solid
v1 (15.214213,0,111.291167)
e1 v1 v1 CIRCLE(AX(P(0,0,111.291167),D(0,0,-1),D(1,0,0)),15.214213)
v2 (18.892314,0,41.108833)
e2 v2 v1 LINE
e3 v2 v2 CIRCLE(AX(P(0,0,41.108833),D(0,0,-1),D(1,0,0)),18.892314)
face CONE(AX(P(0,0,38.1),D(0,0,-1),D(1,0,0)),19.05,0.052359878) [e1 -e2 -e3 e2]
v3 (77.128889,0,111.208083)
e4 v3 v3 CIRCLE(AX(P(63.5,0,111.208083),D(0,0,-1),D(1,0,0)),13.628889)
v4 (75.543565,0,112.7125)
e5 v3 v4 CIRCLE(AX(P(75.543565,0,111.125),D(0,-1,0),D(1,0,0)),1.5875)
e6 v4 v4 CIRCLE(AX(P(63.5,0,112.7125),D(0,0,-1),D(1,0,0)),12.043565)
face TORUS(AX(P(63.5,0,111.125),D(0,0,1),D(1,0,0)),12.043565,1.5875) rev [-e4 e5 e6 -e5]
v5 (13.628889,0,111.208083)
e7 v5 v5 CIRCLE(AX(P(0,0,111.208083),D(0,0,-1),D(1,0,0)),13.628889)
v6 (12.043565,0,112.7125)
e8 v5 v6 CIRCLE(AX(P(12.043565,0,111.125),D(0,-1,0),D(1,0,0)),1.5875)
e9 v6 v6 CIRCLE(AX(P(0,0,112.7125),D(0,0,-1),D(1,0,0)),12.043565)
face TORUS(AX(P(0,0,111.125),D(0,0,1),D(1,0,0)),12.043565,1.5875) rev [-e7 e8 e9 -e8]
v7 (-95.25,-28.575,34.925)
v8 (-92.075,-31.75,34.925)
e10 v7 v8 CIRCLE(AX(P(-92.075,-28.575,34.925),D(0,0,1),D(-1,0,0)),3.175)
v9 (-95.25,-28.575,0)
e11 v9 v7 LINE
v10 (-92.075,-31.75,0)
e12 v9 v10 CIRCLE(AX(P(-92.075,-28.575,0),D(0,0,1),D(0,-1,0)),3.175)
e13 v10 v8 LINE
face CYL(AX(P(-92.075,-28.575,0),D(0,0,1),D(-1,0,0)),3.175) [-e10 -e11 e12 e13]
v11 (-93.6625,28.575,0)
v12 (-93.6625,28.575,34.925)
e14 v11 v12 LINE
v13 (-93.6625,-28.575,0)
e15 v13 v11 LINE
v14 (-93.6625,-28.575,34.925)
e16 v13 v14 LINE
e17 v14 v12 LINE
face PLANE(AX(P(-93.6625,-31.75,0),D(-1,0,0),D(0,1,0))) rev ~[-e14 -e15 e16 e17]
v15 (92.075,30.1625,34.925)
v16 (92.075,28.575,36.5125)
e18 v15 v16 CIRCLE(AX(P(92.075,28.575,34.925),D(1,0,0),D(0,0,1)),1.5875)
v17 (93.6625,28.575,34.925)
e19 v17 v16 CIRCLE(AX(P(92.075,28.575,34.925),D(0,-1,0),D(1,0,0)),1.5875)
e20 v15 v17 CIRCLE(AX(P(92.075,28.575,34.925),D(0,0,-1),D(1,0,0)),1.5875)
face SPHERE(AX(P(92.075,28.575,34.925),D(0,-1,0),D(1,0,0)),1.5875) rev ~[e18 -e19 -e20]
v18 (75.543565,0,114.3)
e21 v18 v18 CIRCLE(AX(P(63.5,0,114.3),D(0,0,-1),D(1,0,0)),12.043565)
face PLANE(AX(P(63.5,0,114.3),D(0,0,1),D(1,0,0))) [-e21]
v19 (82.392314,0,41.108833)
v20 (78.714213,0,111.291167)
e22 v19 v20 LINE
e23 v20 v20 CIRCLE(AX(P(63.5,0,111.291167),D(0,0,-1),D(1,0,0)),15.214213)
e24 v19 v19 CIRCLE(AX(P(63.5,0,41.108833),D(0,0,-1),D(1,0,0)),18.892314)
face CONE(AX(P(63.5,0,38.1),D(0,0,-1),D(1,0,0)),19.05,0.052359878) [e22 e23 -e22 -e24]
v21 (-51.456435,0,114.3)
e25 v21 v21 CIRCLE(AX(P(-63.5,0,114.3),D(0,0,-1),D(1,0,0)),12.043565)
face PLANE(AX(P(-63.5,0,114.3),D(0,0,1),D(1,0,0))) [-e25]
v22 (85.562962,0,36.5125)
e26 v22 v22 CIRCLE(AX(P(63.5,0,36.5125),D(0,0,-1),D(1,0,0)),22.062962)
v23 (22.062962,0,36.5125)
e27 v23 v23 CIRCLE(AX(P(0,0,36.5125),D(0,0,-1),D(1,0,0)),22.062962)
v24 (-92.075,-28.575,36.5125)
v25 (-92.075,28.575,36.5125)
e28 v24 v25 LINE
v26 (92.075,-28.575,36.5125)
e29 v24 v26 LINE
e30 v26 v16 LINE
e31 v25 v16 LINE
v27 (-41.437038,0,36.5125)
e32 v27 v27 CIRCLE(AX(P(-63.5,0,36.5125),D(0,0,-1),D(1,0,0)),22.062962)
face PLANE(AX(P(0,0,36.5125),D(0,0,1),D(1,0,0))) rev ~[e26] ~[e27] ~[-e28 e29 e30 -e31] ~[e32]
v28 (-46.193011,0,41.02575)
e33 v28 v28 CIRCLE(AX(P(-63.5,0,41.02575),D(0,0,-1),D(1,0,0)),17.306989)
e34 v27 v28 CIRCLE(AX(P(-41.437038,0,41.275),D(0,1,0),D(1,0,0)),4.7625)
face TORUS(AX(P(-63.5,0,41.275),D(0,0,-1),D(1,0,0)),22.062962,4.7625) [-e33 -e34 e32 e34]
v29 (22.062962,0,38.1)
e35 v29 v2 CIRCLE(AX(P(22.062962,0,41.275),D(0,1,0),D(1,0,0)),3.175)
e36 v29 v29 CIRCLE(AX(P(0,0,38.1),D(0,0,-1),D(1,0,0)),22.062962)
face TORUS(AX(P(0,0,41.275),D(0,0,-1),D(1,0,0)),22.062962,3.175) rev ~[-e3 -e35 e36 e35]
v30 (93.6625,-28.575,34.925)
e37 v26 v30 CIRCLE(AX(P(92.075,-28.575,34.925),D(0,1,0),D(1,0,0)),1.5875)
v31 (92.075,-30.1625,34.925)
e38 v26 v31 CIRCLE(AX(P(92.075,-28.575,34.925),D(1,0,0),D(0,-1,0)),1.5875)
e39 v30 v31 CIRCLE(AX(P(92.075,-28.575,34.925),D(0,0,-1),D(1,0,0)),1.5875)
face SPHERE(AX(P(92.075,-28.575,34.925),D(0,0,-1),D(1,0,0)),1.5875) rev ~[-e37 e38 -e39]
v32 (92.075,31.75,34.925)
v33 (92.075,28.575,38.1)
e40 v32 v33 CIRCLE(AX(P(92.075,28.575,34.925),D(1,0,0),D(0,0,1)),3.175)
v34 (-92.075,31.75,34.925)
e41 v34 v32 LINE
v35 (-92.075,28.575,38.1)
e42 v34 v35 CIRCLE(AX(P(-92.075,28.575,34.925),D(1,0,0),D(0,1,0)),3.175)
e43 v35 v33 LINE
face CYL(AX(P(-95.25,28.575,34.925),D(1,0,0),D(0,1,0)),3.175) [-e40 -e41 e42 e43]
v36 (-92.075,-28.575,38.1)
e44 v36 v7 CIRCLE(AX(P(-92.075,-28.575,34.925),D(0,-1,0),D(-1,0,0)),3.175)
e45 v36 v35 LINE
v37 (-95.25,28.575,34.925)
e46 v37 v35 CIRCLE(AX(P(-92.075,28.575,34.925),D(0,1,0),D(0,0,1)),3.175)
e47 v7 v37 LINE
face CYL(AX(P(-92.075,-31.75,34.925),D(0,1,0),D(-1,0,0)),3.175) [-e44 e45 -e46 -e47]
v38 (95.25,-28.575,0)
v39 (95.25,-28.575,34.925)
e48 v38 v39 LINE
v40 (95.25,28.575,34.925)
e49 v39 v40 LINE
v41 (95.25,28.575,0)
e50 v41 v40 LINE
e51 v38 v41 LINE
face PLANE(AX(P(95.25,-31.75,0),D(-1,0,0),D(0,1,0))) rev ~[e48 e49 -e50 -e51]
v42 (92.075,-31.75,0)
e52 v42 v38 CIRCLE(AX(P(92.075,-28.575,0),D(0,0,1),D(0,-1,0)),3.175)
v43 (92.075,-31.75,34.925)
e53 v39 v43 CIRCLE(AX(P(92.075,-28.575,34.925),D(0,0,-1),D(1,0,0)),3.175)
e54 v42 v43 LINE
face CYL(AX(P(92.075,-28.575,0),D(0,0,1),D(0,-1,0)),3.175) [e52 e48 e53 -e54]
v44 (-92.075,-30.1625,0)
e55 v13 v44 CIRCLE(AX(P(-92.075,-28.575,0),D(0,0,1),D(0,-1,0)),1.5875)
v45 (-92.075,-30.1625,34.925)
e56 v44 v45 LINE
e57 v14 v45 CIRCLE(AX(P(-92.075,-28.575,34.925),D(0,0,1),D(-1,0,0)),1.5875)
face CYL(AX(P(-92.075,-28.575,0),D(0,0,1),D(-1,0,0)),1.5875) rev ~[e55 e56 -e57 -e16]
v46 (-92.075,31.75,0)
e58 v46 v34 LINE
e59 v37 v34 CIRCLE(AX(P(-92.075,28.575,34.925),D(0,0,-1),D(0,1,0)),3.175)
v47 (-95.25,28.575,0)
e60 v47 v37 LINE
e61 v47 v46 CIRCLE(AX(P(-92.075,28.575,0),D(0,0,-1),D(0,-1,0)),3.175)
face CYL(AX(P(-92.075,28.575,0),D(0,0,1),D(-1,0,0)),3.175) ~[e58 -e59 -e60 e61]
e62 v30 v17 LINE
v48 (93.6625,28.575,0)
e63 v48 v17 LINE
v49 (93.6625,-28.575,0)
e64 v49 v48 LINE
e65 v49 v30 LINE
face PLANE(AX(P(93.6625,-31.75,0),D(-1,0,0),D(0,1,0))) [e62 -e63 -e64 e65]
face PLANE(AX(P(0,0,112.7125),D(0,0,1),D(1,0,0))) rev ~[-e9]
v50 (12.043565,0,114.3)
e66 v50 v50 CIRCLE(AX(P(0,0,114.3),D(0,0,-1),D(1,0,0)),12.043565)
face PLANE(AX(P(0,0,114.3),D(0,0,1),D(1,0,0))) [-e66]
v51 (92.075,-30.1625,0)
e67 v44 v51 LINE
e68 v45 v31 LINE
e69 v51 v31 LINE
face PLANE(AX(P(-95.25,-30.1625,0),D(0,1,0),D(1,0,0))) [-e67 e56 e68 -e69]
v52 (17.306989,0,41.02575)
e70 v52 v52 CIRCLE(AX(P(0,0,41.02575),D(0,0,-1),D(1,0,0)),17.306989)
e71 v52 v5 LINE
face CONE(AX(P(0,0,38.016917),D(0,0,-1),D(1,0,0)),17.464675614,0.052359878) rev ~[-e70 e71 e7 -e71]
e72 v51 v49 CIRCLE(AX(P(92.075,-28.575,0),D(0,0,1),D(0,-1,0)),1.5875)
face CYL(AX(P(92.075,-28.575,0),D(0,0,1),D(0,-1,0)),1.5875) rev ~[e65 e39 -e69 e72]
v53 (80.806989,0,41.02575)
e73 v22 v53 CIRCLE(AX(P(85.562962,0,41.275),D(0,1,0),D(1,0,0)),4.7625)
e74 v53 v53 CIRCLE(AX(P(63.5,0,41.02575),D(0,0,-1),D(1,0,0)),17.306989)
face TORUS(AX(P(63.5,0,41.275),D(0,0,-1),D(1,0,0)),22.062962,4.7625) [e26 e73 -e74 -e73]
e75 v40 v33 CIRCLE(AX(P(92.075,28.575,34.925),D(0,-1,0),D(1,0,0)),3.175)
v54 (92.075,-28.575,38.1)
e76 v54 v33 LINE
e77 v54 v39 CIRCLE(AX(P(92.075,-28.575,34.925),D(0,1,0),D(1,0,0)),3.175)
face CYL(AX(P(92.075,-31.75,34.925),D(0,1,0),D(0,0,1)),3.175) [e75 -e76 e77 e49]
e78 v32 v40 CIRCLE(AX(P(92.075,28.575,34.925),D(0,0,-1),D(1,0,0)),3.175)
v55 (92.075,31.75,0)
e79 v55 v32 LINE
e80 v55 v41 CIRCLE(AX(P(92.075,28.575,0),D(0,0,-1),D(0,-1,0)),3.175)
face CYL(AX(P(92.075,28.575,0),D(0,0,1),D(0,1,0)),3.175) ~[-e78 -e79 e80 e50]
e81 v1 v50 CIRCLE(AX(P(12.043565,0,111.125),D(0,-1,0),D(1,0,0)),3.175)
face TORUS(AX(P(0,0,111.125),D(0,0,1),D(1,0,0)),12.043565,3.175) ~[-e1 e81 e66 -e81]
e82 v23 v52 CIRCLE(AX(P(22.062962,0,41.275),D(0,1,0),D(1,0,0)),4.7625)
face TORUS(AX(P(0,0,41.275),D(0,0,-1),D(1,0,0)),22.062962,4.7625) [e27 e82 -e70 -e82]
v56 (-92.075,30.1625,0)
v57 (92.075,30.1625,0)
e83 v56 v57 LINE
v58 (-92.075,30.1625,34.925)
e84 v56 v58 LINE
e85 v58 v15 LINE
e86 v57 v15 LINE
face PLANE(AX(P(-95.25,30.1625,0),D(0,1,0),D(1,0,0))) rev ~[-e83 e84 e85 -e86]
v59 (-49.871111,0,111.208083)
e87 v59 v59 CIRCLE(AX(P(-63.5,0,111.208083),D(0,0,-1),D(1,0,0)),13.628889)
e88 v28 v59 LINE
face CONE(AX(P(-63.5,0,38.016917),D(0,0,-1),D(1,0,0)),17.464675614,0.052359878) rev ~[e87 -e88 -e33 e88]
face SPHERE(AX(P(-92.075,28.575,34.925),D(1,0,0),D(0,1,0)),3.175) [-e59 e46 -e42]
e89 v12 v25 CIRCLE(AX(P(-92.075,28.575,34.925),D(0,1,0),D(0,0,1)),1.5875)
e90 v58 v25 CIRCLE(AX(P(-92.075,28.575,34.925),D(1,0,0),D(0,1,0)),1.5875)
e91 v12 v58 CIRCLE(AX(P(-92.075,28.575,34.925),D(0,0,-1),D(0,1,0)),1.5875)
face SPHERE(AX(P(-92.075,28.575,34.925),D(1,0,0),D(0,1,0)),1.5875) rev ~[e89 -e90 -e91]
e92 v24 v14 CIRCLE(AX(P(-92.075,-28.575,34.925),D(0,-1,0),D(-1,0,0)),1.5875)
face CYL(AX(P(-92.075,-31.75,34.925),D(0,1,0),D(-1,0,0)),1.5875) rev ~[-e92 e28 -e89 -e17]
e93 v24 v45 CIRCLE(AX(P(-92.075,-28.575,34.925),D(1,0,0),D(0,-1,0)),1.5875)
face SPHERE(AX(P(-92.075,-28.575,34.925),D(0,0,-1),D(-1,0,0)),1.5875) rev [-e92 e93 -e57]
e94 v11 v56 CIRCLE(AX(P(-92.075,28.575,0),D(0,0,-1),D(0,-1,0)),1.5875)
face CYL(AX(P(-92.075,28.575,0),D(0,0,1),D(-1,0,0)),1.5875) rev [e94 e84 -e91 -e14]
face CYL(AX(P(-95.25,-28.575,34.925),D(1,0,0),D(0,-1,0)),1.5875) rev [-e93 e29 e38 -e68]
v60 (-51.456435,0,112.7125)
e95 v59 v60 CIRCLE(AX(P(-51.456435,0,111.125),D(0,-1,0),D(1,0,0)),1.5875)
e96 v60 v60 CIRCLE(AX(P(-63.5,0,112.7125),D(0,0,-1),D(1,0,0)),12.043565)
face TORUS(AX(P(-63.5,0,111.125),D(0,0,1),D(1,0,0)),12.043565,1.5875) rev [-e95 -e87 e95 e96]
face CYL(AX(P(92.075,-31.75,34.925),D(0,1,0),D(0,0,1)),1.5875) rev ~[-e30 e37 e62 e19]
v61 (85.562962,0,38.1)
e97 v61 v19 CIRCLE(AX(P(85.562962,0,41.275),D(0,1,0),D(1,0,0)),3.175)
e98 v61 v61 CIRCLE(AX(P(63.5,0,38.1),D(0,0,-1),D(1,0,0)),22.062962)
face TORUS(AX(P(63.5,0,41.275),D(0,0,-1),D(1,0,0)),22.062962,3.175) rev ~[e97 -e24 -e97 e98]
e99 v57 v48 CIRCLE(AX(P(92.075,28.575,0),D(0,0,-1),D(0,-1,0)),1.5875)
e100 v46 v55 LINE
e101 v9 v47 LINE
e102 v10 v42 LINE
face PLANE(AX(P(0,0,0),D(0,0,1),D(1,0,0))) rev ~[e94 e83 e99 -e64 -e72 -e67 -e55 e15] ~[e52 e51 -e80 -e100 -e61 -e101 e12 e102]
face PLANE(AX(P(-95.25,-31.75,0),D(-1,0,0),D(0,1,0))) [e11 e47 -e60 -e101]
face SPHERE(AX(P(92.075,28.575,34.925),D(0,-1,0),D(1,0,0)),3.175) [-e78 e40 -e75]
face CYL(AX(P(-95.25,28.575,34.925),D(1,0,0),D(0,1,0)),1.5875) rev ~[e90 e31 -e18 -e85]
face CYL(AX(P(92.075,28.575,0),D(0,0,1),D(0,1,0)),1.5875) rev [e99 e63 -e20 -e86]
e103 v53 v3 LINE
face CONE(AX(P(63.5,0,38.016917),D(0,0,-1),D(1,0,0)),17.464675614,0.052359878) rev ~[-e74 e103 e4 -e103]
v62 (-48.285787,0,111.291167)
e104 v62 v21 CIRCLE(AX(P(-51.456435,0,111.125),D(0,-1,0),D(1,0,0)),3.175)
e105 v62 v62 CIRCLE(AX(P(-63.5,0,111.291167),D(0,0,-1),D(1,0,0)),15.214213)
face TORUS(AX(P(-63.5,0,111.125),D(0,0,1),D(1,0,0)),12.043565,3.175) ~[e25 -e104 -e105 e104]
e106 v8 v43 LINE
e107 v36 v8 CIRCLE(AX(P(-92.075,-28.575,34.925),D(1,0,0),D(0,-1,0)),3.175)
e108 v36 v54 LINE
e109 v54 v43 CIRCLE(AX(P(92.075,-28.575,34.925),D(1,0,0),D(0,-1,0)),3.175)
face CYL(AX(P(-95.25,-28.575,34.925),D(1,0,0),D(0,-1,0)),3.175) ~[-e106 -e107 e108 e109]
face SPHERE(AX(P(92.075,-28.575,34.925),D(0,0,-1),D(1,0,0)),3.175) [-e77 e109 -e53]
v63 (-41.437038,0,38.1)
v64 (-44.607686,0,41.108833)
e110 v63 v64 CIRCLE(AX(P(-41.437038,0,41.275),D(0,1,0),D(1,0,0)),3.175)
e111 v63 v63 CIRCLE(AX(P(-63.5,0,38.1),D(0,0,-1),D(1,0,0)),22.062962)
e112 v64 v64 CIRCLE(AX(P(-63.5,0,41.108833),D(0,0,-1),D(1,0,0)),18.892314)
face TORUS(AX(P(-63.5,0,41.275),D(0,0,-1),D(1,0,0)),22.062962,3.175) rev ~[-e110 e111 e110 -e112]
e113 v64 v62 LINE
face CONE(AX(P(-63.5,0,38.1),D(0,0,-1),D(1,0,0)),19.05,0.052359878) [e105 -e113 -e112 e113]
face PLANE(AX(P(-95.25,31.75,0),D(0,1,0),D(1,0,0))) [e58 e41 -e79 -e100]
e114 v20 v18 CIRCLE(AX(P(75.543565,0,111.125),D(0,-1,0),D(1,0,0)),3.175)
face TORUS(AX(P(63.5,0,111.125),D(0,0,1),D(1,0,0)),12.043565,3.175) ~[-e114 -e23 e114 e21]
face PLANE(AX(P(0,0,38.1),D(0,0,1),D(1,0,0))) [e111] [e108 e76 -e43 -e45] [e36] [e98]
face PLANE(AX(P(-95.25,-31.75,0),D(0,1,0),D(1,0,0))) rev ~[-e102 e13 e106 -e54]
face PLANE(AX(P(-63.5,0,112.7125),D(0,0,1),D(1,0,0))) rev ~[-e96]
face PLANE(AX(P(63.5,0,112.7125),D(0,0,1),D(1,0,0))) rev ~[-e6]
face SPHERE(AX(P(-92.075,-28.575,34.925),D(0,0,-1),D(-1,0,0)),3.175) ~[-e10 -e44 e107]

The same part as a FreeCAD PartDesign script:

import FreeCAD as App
import Part
import Sketcher

V = App.Vector
Q = App.Units.Quantity


def edges_at(feature, points):
    """Names of the edges that pass closest to the given points."""
    edges = feature.Shape.Edges
    near = lambda p: min(range(len(edges)), key=lambda i: edges[i].distToShape(Part.Vertex(*p))[0])
    return sorted({f"Edge{near(p) + 1}" for p in points})


def faces_at(feature, points):
    """Names of the faces that lie closest to the given points."""
    faces = feature.Shape.Faces
    near = lambda p: min(range(len(faces)), key=lambda i: faces[i].distToShape(Part.Vertex(*p))[0])
    return sorted({f"Face{near(p) + 1}" for p in points})


def add_polygon(sketch, points):
    """Adds a closed chain of lines whose ends are joined by coincident constraints."""
    first, n = sketch.GeometryCount, len(points)
    for a, b in zip(points, points[1:] + points[:1]):
        sketch.addGeometry(Part.LineSegment(App.Vector(*a, 0), App.Vector(*b, 0)), False)
    for i in range(n):
        sketch.addConstraint(Sketcher.Constraint("Coincident", first + i, 2, first + (i + 1) % n, 1))

doc = App.newDocument("Part")
body = doc.addObject("PartDesign::Body", "Body")

# Sketch on XY plane
sketch1 = body.newObject("Sketcher::SketchObject", "Sketch")
sketch1.AttachmentSupport = (doc.getObject("XY_Plane"), [""])
sketch1.MapMode = "FlatFace"
add_polygon(sketch1, [(-95.25, 31.75), (-95.25, -31.75), (95.25, -31.75), (95.25, 31.75)])  # lines 0-3
sketch1.addConstraint([
    Sketcher.Constraint("Vertical", 0),
    Sketcher.Constraint("Horizontal", 1),
    Sketcher.Constraint("Vertical", 2),
    Sketcher.Constraint("Horizontal", 3),
    Sketcher.Constraint("Symmetric", 0, 2, 2, 2, -1, 1),
    Sketcher.Constraint("DistanceX", 1, 1, 1, 2, Q("7.5 in")),
    Sketcher.Constraint("DistanceY", 0, 2, 0, 1, Q("2.5 in")),
])
pad1 = body.newObject("PartDesign::Pad", "Pad")
pad1.Profile = sketch1
pad1.Length = Q("1.5 in")

# Sketch on XY plane
sketch2 = body.newObject("Sketcher::SketchObject", "Sketch001")
sketch2.AttachmentSupport = (doc.getObject("XY_Plane"), [""])
sketch2.MapMode = "FlatFace"
sketch2.AttachmentOffset = App.Placement(V(0, 0, 1.5 * 25.4), App.Rotation())
sketch2.addGeometry([
    Part.Circle(V(-63.5, 0, 0), V(0, 0, 1), 19.05),
    Part.Circle(V(0, 0, 0), V(0, 0, 1), 19.05),
    Part.Circle(V(63.5, 0, 0), V(0, 0, 1), 19.05),
], False)
sketch2.addConstraint([
    Sketcher.Constraint("Coincident", 1, 3, -1, 1),
    Sketcher.Constraint("Equal", 0, 1),
    Sketcher.Constraint("Equal", 1, 2),
    Sketcher.Constraint("Symmetric", 0, 3, 2, 3, -1, 1),
    Sketcher.Constraint("PointOnObject", 0, 3, -1),
    Sketcher.Constraint("Diameter", 0, Q("1.5 in")),
    Sketcher.Constraint("DistanceX", 0, 3, 2, 3, Q("5 in")),
])
pad2 = body.newObject("PartDesign::Pad", "Pad001")
pad2.Profile = sketch2
pad2.Length = Q("3 in")
pad2.TaperAngle = -3
doc.recompute()

fillet = body.newObject("PartDesign::Fillet", "Fillet")
fillet.Base = (pad2, edges_at(pad2, [
    (95.25, -31.75, 19.05),
    (95.25, 0, 38.1),
    (95.25, 31.75, 19.05),
    (0, 31.75, 38.1),
    (-95.25, 31.75, 19.05),
    (-95.25, -31.75, 19.05),
    (-78.557, 0, 114.3),
    (-15.057, 0, 114.3),
    (48.443, 0, 114.3),
    (-95.25, 0, 38.1),
    (44.45, 0, 38.1),
    (-19.05, 0, 38.1),
    (0, -31.75, 38.1),
    (-82.55, 0, 38.1),
]))
fillet.Radius = Q("0.125 in")
doc.recompute()

thickness = body.newObject("PartDesign::Thickness", "Thickness")
thickness.Base = (fillet, faces_at(fillet, [(0, 0, 0)]))
thickness.Value = Q("0.0625 in")
thickness.Reversed = True
thickness.Join = "Arc"

doc.recompute()
